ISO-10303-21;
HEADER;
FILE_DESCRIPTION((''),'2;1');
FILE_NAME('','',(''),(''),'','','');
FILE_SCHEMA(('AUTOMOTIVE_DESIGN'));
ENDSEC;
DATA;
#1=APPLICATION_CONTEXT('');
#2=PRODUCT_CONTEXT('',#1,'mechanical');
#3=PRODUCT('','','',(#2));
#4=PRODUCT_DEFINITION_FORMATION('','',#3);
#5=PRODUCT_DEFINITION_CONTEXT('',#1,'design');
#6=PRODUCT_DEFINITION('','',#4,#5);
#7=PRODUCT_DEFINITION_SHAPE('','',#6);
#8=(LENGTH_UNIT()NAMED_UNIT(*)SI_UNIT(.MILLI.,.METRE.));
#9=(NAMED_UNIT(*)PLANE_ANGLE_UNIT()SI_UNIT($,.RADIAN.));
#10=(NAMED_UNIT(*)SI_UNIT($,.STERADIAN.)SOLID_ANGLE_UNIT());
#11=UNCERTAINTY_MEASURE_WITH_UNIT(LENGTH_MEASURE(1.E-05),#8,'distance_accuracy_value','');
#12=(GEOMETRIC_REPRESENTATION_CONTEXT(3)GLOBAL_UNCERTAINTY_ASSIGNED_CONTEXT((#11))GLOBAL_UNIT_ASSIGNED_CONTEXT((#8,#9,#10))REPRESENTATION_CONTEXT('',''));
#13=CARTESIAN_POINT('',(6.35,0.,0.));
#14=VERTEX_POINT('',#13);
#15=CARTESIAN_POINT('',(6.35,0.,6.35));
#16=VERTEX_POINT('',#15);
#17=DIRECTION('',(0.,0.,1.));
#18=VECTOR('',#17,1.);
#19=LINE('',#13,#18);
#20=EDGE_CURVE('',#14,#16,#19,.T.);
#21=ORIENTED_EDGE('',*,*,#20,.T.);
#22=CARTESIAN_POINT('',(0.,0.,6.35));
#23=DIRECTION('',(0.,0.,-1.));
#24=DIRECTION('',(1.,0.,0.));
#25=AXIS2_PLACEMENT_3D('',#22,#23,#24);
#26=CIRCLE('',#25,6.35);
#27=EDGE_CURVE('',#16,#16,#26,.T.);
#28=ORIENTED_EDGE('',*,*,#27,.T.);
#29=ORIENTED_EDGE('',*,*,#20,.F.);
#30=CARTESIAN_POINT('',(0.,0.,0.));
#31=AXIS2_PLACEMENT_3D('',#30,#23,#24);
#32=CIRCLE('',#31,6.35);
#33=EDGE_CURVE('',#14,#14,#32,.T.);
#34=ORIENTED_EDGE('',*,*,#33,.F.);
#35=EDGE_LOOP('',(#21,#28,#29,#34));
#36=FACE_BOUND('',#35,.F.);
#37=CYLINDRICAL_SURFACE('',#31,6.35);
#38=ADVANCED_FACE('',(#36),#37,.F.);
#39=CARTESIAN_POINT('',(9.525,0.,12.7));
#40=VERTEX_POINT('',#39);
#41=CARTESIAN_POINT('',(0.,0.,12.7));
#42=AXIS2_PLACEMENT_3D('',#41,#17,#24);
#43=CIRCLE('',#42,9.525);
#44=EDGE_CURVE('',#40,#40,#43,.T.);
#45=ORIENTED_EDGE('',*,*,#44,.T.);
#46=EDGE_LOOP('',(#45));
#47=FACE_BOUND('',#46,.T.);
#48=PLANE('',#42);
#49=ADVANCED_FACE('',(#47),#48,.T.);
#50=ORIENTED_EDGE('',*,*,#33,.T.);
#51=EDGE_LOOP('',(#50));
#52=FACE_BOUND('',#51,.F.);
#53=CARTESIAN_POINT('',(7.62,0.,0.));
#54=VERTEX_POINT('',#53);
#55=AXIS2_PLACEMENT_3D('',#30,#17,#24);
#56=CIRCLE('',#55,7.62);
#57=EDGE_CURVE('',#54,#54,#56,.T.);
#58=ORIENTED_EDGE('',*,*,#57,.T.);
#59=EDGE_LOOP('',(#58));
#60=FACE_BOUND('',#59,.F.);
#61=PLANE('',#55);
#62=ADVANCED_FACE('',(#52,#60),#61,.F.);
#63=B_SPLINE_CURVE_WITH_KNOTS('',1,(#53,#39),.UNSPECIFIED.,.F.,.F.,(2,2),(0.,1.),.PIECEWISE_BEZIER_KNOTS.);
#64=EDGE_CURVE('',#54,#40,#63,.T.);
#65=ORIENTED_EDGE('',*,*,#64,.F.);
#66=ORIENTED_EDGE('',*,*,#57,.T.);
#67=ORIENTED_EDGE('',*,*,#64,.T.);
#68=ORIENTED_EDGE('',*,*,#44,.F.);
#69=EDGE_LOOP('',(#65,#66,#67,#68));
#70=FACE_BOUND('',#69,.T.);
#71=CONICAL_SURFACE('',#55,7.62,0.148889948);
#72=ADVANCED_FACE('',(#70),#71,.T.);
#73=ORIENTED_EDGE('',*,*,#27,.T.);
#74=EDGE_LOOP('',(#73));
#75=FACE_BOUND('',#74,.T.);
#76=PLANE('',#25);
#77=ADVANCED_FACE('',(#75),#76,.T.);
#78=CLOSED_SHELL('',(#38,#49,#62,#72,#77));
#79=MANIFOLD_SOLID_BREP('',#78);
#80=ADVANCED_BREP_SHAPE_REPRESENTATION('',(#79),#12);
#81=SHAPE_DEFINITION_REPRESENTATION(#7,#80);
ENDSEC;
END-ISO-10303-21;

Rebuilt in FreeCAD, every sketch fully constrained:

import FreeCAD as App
import Part
import Sketcher
Q = App.Units.Quantity

doc = App.newDocument("Part")
body = doc.addObject("PartDesign::Body", "Body")

sketch1 = body.newObject("Sketcher::SketchObject", "Sketch")
sketch1.AttachmentSupport = (doc.getObject("XY_Plane"), [""])
sketch1.MapMode = "FlatFace"
sketch1.addGeometry(Part.Circle(App.Vector(0, 0, 0), App.Vector(0, 0, 1), 8), False)
sketch1.addConstraint(Sketcher.Constraint("Coincident", 0, 3, -1, 1))
sketch1.addConstraint(Sketcher.Constraint("Diameter", 0, Q("0.6 in")))

sketch2 = body.newObject("Sketcher::SketchObject", "Sketch001")
sketch2.AttachmentSupport = (doc.getObject("XY_Plane"), [""])
sketch2.MapMode = "FlatFace"
sketch2.AttachmentOffset = App.Placement(App.Vector(0, 0, 0.5 * 25.4), App.Rotation())
sketch2.addGeometry(Part.Circle(App.Vector(0, 0, 0), App.Vector(0, 0, 1), 10), False)
sketch2.addConstraint(Sketcher.Constraint("Coincident", 0, 3, -1, 1))
sketch2.addConstraint(Sketcher.Constraint("Diameter", 0, Q("0.75 in")))

additiveloft = body.newObject("PartDesign::AdditiveLoft", "AdditiveLoft")
additiveloft.Profile = sketch1
additiveloft.Sections = [sketch2]

sketch3 = body.newObject("Sketcher::SketchObject", "Sketch002")
sketch3.AttachmentSupport = (doc.getObject("XY_Plane"), [""])
sketch3.MapMode = "FlatFace"
sketch3.addGeometry(Part.Circle(App.Vector(0, 0, 0), App.Vector(0, 0, 1), 6), False)
sketch3.addConstraint(Sketcher.Constraint("Coincident", 0, 3, -1, 1))
sketch3.addConstraint(Sketcher.Constraint("Diameter", 0, Q("0.5 in")))
pocket1 = body.newObject("PartDesign::Pocket", "Pocket")
pocket1.Profile = sketch3
pocket1.Length = Q("0.25 in")
pocket1.Reversed = True

doc.recompute()
